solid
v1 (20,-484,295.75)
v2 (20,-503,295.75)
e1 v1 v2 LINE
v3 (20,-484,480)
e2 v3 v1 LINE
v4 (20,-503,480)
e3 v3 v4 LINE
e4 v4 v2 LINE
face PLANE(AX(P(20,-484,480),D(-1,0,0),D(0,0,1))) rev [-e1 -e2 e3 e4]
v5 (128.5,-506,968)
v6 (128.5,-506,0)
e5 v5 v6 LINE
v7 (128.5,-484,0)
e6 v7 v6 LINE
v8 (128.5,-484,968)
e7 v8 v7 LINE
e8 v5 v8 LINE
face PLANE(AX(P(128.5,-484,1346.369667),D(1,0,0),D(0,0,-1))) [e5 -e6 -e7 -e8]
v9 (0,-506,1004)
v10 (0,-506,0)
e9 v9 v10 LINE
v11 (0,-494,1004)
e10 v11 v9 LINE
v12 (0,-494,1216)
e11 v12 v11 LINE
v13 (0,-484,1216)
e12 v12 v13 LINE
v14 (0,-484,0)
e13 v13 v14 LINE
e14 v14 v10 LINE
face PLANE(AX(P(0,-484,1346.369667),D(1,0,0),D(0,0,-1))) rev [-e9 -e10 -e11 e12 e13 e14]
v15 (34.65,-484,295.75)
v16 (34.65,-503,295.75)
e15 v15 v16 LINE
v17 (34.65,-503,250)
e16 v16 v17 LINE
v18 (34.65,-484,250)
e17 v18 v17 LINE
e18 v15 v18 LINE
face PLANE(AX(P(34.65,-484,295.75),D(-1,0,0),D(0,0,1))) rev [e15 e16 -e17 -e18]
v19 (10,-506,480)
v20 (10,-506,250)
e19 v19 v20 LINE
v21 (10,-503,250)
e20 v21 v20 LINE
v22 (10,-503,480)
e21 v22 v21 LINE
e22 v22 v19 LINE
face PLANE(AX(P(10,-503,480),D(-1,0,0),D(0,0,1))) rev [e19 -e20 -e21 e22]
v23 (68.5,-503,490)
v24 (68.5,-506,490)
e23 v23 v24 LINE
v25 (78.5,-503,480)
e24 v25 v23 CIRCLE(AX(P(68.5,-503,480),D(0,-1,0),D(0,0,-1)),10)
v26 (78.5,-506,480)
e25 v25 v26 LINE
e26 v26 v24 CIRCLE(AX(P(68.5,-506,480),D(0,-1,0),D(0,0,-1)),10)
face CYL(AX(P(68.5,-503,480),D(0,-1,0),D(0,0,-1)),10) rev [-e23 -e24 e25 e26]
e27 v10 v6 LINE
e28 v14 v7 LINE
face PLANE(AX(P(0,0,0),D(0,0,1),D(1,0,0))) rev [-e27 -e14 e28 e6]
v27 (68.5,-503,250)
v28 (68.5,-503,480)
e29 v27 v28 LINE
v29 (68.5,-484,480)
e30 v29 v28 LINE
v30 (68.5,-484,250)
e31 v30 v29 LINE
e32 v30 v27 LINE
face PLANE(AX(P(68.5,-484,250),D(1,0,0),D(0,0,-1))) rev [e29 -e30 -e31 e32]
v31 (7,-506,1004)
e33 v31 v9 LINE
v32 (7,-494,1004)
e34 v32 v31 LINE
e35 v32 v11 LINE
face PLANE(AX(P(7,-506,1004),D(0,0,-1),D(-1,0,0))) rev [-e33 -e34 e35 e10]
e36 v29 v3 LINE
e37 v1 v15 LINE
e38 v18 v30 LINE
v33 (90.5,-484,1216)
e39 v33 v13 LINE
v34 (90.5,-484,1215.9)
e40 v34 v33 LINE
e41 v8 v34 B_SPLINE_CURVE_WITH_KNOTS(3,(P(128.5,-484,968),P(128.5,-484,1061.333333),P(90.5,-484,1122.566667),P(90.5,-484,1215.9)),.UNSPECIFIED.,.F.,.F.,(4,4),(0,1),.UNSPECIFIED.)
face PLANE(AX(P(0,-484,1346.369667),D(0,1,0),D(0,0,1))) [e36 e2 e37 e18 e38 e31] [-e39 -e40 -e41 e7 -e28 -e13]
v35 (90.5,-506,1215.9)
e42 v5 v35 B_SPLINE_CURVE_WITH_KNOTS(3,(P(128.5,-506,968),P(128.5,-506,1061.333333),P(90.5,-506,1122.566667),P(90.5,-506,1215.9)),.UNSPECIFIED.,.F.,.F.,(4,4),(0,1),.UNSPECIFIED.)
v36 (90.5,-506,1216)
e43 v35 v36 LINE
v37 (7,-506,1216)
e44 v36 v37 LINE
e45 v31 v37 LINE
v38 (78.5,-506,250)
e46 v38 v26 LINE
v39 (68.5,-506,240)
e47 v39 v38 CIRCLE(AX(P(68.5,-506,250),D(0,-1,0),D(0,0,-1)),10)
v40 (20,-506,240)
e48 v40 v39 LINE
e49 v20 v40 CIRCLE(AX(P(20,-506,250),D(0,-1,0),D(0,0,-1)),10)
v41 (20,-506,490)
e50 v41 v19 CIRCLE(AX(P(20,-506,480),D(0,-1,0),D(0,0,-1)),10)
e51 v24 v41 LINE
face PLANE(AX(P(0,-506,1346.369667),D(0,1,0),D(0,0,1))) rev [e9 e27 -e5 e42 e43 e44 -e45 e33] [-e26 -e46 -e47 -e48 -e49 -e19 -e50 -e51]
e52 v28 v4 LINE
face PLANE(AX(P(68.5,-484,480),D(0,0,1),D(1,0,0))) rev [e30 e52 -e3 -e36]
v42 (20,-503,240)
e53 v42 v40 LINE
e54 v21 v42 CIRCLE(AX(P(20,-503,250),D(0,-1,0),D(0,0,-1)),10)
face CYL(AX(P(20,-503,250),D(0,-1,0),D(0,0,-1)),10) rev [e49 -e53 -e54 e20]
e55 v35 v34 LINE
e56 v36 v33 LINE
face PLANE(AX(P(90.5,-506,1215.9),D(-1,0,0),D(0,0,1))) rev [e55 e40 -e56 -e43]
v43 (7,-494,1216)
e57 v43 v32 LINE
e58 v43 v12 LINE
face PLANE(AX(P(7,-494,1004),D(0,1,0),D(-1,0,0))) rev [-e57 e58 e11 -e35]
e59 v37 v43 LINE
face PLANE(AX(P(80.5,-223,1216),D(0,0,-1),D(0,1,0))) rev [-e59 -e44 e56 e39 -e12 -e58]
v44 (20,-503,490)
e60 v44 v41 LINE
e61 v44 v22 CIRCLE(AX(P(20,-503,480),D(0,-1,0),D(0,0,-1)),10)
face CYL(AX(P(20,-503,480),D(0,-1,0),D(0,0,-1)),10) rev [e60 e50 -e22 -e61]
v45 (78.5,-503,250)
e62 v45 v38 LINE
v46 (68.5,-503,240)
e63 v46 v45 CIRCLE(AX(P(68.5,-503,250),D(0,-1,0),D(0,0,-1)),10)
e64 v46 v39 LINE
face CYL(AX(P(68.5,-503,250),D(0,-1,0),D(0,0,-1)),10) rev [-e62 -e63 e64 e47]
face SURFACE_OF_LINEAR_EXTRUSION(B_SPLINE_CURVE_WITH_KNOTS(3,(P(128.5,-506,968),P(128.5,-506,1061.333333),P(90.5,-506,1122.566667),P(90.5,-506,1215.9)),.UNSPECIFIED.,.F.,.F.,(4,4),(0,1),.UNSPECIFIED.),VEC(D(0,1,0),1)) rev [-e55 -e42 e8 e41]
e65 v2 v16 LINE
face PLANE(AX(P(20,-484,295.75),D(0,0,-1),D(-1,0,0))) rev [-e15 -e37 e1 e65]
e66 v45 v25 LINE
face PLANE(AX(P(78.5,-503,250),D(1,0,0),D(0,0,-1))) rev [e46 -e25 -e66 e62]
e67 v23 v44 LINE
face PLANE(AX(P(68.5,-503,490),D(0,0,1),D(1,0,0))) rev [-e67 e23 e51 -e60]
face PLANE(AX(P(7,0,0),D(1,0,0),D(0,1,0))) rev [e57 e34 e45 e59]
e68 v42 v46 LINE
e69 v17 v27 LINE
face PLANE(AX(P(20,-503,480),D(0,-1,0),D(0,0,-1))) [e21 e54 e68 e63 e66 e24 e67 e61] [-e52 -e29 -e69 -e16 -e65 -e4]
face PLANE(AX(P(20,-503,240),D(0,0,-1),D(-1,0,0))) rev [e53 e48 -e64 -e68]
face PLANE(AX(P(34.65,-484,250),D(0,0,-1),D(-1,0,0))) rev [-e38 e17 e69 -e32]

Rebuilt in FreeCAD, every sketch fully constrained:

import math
import FreeCAD as App
import Part
import Sketcher

doc = App.newDocument("Part")
body = doc.addObject("PartDesign::Body", "Body")

sketch1 = body.newObject("Sketcher::SketchObject", "Sketch")
sketch1.AttachmentSupport = (doc.getObject("XY_Plane"), [""])
sketch1.MapMode = "FlatFace"
sketch1.addGeometry(Part.LineSegment(App.Vector(0, -484, 0), App.Vector(0, -506, 0)), False)
sketch1.addGeometry(Part.LineSegment(App.Vector(0, -506, 0), App.Vector(128, -506, 0)), False)
sketch1.addGeometry(Part.LineSegment(App.Vector(128, -506, 0), App.Vector(128, -484, 0)), False)
sketch1.addGeometry(Part.LineSegment(App.Vector(128, -484, 0), App.Vector(0, -484, 0)), False)
sketch1.addConstraint(Sketcher.Constraint("Coincident", 0, 2, 1, 1))
sketch1.addConstraint(Sketcher.Constraint("Coincident", 1, 2, 2, 1))
sketch1.addConstraint(Sketcher.Constraint("Coincident", 2, 2, 3, 1))
sketch1.addConstraint(Sketcher.Constraint("Coincident", 3, 2, 0, 1))
sketch1.addConstraint(Sketcher.Constraint("Vertical", 0))
sketch1.addConstraint(Sketcher.Constraint("Horizontal", 1))
sketch1.addConstraint(Sketcher.Constraint("Vertical", 2))
sketch1.addConstraint(Sketcher.Constraint("Horizontal", 3))
sketch1.addConstraint(Sketcher.Constraint("PointOnObject", 0, 2, -2))
sketch1.addConstraint(Sketcher.Constraint("DistanceY", 0, 2, 0, 1, 22.0))
sketch1.addConstraint(Sketcher.Constraint("DistanceX", 1, 1, 1, 2, 128.5))
sketch1.addConstraint(Sketcher.Constraint("DistanceY", 0, 2, -1, 1, 506.0))
pad1 = body.newObject("PartDesign::Pad", "Pad")
pad1.Profile = sketch1
pad1.Length = 1216

sketch2 = body.newObject("Sketcher::SketchObject", "Sketch001")
sketch2.AttachmentSupport = (doc.getObject("XZ_Plane"), [""])
sketch2.MapMode = "FlatFace"
sketch2.AttachmentOffset = App.Placement(App.Vector(0, 0, 484), App.Rotation())
sketch2.addGeometry(Part.LineSegment(App.Vector(90.5, 1215.9, 0), App.Vector(90.5, 1216, 0)), False)
sketch2.addGeometry(Part.LineSegment(App.Vector(90.5, 1216, 0), App.Vector(128.5, 1216, 0)), False)
sketch2.addGeometry(Part.LineSegment(App.Vector(128.5, 1216, 0), App.Vector(128.5, 968, 0)), False)
sketch2.addGeometry(Part.BSplineCurve([App.Vector(128.5, 968, 0), App.Vector(128.5, 1061.333333, 0), App.Vector(90.5, 1122.566667, 0), App.Vector(90.5, 1215.9, 0)], [4, 4], [0, 1], False, 3, [1, 1, 1, 1], False), False)
sketch2.addConstraint(Sketcher.Constraint("Block", 3))
sketch2.addConstraint(Sketcher.Constraint("Coincident", 0, 2, 1, 1))
sketch2.addConstraint(Sketcher.Constraint("Coincident", 1, 2, 2, 1))
sketch2.addConstraint(Sketcher.Constraint("Coincident", 2, 2, 3, 1))
sketch2.addConstraint(Sketcher.Constraint("Coincident", 3, 2, 0, 1))
sketch2.addConstraint(Sketcher.Constraint("Vertical", 0))
sketch2.addConstraint(Sketcher.Constraint("Horizontal", 1))
sketch2.addConstraint(Sketcher.Constraint("Vertical", 2))
sketch2.addConstraint(Sketcher.Constraint("DistanceY", 2, 2, 2, 1, 248.0))
pocket1 = body.newObject("PartDesign::Pocket", "Pocket")
pocket1.Profile = sketch2
pocket1.Type = "ThroughAll"
pocket1.Reversed = True

sketch3 = body.newObject("Sketcher::SketchObject", "Sketch002")
sketch3.AttachmentSupport = (doc.getObject("YZ_Plane"), [""])
sketch3.MapMode = "FlatFace"
sketch3.addGeometry(Part.LineSegment(App.Vector(-494, 1004, 0), App.Vector(-506, 1004, 0)), False)
sketch3.addGeometry(Part.LineSegment(App.Vector(-506, 1004, 0), App.Vector(-506, 1216, 0)), False)
sketch3.addGeometry(Part.LineSegment(App.Vector(-506, 1216, 0), App.Vector(-494, 1216, 0)), False)
sketch3.addGeometry(Part.LineSegment(App.Vector(-494, 1216, 0), App.Vector(-494, 1004, 0)), False)
sketch3.addConstraint(Sketcher.Constraint("Coincident", 0, 2, 1, 1))
sketch3.addConstraint(Sketcher.Constraint("Coincident", 1, 2, 2, 1))
sketch3.addConstraint(Sketcher.Constraint("Coincident", 2, 2, 3, 1))
sketch3.addConstraint(Sketcher.Constraint("Coincident", 3, 2, 0, 1))
sketch3.addConstraint(Sketcher.Constraint("Horizontal", 0))
sketch3.addConstraint(Sketcher.Constraint("Vertical", 1))
sketch3.addConstraint(Sketcher.Constraint("Horizontal", 2))
sketch3.addConstraint(Sketcher.Constraint("Vertical", 3))
sketch3.addConstraint(Sketcher.Constraint("DistanceX", 0, 2, 0, 1, 12.0))
sketch3.addConstraint(Sketcher.Constraint("DistanceY", 1, 1, 1, 2, 212.0))
sketch3.addConstraint(Sketcher.Constraint("DistanceX", 0, 2, -1, 1, 506.0))
sketch3.addConstraint(Sketcher.Constraint("DistanceY", -1, 1, 0, 2, 1004.0))
pocket2 = body.newObject("PartDesign::Pocket", "Pocket001")
pocket2.Profile = sketch3
pocket2.Length = 7
pocket2.Reversed = True

sketch4 = body.newObject("Sketcher::SketchObject", "Sketch003")
sketch4.AttachmentSupport = (doc.getObject("XZ_Plane"), [""])
sketch4.MapMode = "FlatFace"
sketch4.AttachmentOffset = App.Placement(App.Vector(0, 0, 506), App.Rotation())
sketch4.addGeometry(Part.LineSegment(App.Vector(10, 480, 0), App.Vector(10, 250, 0)), False)
sketch4.addGeometry(Part.ArcOfCircle(Part.Circle(App.Vector(20, 250, 0), App.Vector(0, 0, 1), 10), math.radians(180), math.radians(270)), False)
sketch4.addGeometry(Part.LineSegment(App.Vector(20, 240, 0), App.Vector(68, 240, 0)), False)
sketch4.addGeometry(Part.ArcOfCircle(Part.Circle(App.Vector(68, 250, 0), App.Vector(0, 0, 1), 10), math.radians(-90), math.radians(0)), False)
sketch4.addGeometry(Part.LineSegment(App.Vector(78, 250, 0), App.Vector(78, 480, 0)), False)
sketch4.addGeometry(Part.ArcOfCircle(Part.Circle(App.Vector(68, 480, 0), App.Vector(0, 0, 1), 10), math.radians(0), math.radians(90)), False)
sketch4.addGeometry(Part.LineSegment(App.Vector(68, 490, 0), App.Vector(20, 490, 0)), False)
sketch4.addGeometry(Part.ArcOfCircle(Part.Circle(App.Vector(20, 480, 0), App.Vector(0, 0, 1), 10), math.radians(90), math.radians(180)), False)
sketch4.addConstraint(Sketcher.Constraint("Tangent", 0, 2, 1, 1))
sketch4.addConstraint(Sketcher.Constraint("Tangent", 1, 2, 2, 1))
sketch4.addConstraint(Sketcher.Constraint("Tangent", 2, 2, 3, 1))
sketch4.addConstraint(Sketcher.Constraint("Tangent", 3, 2, 4, 1))
sketch4.addConstraint(Sketcher.Constraint("Tangent", 4, 2, 5, 1))
sketch4.addConstraint(Sketcher.Constraint("Tangent", 5, 2, 6, 1))
sketch4.addConstraint(Sketcher.Constraint("Tangent", 6, 2, 7, 1))
sketch4.addConstraint(Sketcher.Constraint("Tangent", 7, 2, 0, 1))
sketch4.addConstraint(Sketcher.Constraint("Vertical", 0))
sketch4.addConstraint(Sketcher.Constraint("Horizontal", 2))
sketch4.addConstraint(Sketcher.Constraint("Vertical", 4))
sketch4.addConstraint(Sketcher.Constraint("Horizontal", 6))
sketch4.addConstraint(Sketcher.Constraint("Equal", 1, 3))
sketch4.addConstraint(Sketcher.Constraint("Equal", 3, 5))
sketch4.addConstraint(Sketcher.Constraint("Equal", 5, 7))
sketch4.addConstraint(Sketcher.Constraint("Radius", 1, 10.0))
sketch4.addConstraint(Sketcher.Constraint("DistanceY", 0, 2, 0, 1, 230.0))
sketch4.addConstraint(Sketcher.Constraint("DistanceX", 2, 1, 2, 2, 48.5))
sketch4.addConstraint(Sketcher.Constraint("DistanceX", -1, 1, 1, 3, 20.0))
sketch4.addConstraint(Sketcher.Constraint("DistanceY", -1, 1, 1, 3, 250.0))
pocket3 = body.newObject("PartDesign::Pocket", "Pocket002")
pocket3.Profile = sketch4
pocket3.Length = 3

sketch5 = body.newObject("Sketcher::SketchObject", "Sketch004")
sketch5.AttachmentSupport = (doc.getObject("XZ_Plane"), [""])
sketch5.MapMode = "FlatFace"
sketch5.AttachmentOffset = App.Placement(App.Vector(0, 0, 503), App.Rotation())
sketch5.addGeometry(Part.LineSegment(App.Vector(68, 480, 0), App.Vector(20, 480, 0)), False)
sketch5.addGeometry(Part.LineSegment(App.Vector(20, 480, 0), App.Vector(20, 296, 0)), False)
sketch5.addGeometry(Part.LineSegment(App.Vector(20, 296, 0), App.Vector(35, 296, 0)), False)
sketch5.addGeometry(Part.LineSegment(App.Vector(35, 296, 0), App.Vector(35, 250, 0)), False)
sketch5.addGeometry(Part.LineSegment(App.Vector(35, 250, 0), App.Vector(68, 250, 0)), False)
sketch5.addGeometry(Part.LineSegment(App.Vector(68, 250, 0), App.Vector(68, 480, 0)), False)
sketch5.addConstraint(Sketcher.Constraint("Coincident", 0, 2, 1, 1))
sketch5.addConstraint(Sketcher.Constraint("Coincident", 1, 2, 2, 1))
sketch5.addConstraint(Sketcher.Constraint("Coincident", 2, 2, 3, 1))
sketch5.addConstraint(Sketcher.Constraint("Coincident", 3, 2, 4, 1))
sketch5.addConstraint(Sketcher.Constraint("Coincident", 4, 2, 5, 1))
sketch5.addConstraint(Sketcher.Constraint("Coincident", 5, 2, 0, 1))
sketch5.addConstraint(Sketcher.Constraint("Horizontal", 0))
sketch5.addConstraint(Sketcher.Constraint("Vertical", 1))
sketch5.addConstraint(Sketcher.Constraint("Horizontal", 2))
sketch5.addConstraint(Sketcher.Constraint("Vertical", 3))
sketch5.addConstraint(Sketcher.Constraint("Horizontal", 4))
sketch5.addConstraint(Sketcher.Constraint("Vertical", 5))
sketch5.addConstraint(Sketcher.Constraint("DistanceY", 5, 1, 5, 2, 230.0))
sketch5.addConstraint(Sketcher.Constraint("DistanceX", 0, 2, 0, 1, 48.5))
sketch5.addConstraint(Sketcher.Constraint("DistanceX", -1, 1, 0, 2, 20.0))
sketch5.addConstraint(Sketcher.Constraint("DistanceY", -1, 1, 0, 2, 480.0))
sketch5.addConstraint(Sketcher.Constraint("DistanceX", 2, 1, 2, 2, 14.65))
sketch5.addConstraint(Sketcher.Constraint("DistanceY", 1, 2, 1, 1, 184.25))
pocket4 = body.newObject("PartDesign::Pocket", "Pocket003")
pocket4.Profile = sketch5
pocket4.Type = "ThroughAll"

doc.recompute()
